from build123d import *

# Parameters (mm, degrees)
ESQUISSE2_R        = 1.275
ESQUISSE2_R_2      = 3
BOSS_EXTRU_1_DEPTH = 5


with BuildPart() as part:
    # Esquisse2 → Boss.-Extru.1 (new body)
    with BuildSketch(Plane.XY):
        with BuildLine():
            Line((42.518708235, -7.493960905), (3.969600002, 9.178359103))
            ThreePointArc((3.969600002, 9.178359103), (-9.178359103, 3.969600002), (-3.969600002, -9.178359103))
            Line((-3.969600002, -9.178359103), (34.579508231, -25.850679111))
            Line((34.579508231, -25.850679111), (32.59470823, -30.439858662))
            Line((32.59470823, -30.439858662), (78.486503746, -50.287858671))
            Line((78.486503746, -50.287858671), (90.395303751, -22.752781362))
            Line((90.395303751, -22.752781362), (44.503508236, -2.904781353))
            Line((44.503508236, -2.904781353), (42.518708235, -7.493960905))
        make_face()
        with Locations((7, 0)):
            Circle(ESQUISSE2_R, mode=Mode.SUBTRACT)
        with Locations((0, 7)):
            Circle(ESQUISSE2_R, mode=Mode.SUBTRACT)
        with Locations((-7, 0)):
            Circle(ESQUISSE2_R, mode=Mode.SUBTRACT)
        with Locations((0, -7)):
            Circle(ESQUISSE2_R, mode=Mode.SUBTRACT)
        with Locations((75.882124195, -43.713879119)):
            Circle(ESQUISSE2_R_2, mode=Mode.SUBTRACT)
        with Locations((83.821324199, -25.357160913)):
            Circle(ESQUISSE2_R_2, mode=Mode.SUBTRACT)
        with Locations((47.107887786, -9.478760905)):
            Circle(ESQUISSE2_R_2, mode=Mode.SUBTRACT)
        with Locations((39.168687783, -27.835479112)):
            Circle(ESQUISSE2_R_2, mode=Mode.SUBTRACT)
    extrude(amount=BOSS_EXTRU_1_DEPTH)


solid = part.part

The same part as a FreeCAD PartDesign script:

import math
import FreeCAD as App
import Part
import Sketcher

doc = App.newDocument("Part")
body = doc.addObject("PartDesign::Body", "Body")

# Sketch on XY plane
sketch1 = body.newObject("Sketcher::SketchObject", "Sketch")
sketch1.AttachmentSupport = (doc.getObject("XY_Plane"), [""])
sketch1.MapMode = "FlatFace"
sketch1.addGeometry([
    Part.LineSegment(App.Vector(42.5, -7.5, 0), App.Vector(4, 9.2, 0)),  # 0
    Part.ArcOfCircle(Part.Circle(App.Vector(0, 0, 0), App.Vector(0, 0, 1), 10), math.radians(67), math.radians(247)),  # 1
    Part.LineSegment(App.Vector(-4, -9.2, 0), App.Vector(34.6, -25.9, 0)),  # 2
    Part.LineSegment(App.Vector(34.6, -25.9, 0), App.Vector(32.6, -30.4, 0)),  # 3
    Part.LineSegment(App.Vector(32.6, -30.4, 0), App.Vector(78.5, -50.3, 0)),  # 4
    Part.LineSegment(App.Vector(78.5, -50.3, 0), App.Vector(90.4, -22.8, 0)),  # 5
    Part.LineSegment(App.Vector(90.4, -22.8, 0), App.Vector(44.5, -2.9, 0)),  # 6
    Part.LineSegment(App.Vector(44.5, -2.9, 0), App.Vector(42.5, -7.5, 0)),  # 7
    Part.Circle(App.Vector(39.2, -27.8, 0), App.Vector(0, 0, 1), 3),  # 8
    Part.Circle(App.Vector(75.9, -43.7, 0), App.Vector(0, 0, 1), 3),  # 9
    Part.Circle(App.Vector(83.8, -25.4, 0), App.Vector(0, 0, 1), 3),  # 10
    Part.Circle(App.Vector(0, -7, 0), App.Vector(0, 0, 1), 1.3),  # 11
    Part.Circle(App.Vector(-7, 0, 0), App.Vector(0, 0, 1), 1.3),  # 12
    Part.Circle(App.Vector(7, 0, 0), App.Vector(0, 0, 1), 1.3),  # 13
    Part.Circle(App.Vector(0, 7, 0), App.Vector(0, 0, 1), 1.3),  # 14
    Part.Circle(App.Vector(47.1, -9.5, 0), App.Vector(0, 0, 1), 3),  # 15
], False)
sketch1.addConstraint([
    Sketcher.Constraint("Tangent", 0, 2, 1, 1),
    Sketcher.Constraint("Tangent", 1, 2, 2, 1),
    Sketcher.Constraint("Coincident", 2, 2, 3, 1),
    Sketcher.Constraint("Coincident", 3, 2, 4, 1),
    Sketcher.Constraint("Coincident", 4, 2, 5, 1),
    Sketcher.Constraint("Coincident", 5, 2, 6, 1),
    Sketcher.Constraint("Coincident", 6, 2, 7, 1),
    Sketcher.Constraint("Coincident", 7, 2, 0, 1),
    Sketcher.Constraint("Coincident", 1, 3, -1, 1),
    Sketcher.Constraint("Equal", 8, 9),
    Sketcher.Constraint("Equal", 9, 10),
    Sketcher.Constraint("Equal", 11, 12),
    Sketcher.Constraint("Equal", 12, 13),
    Sketcher.Constraint("Equal", 13, 14),
    Sketcher.Constraint("Equal", 10, 15),
    Sketcher.Constraint("Symmetric", 12, 3, 13, 3, -1, 1),
    Sketcher.Constraint("Symmetric", 11, 3, 14, 3, -1, 1),
    Sketcher.Constraint("PointOnObject", 11, 3, -2),
    Sketcher.Constraint("PointOnObject", 12, 3, -1),
    Sketcher.Constraint("Parallel", 0, 2),
    Sketcher.Constraint("Perpendicular", 2, 3),
    Sketcher.Constraint("Perpendicular", 3, 4),
    Sketcher.Constraint("Perpendicular", 4, 5),
    Sketcher.Constraint("Perpendicular", 5, 6),
    Sketcher.Constraint("Perpendicular", 6, 7),
    Sketcher.Constraint("Equal", 0, 2),
    Sketcher.Constraint("Equal", 3, 7),
    Sketcher.Constraint("Diameter", 8, 6.0),
    Sketcher.Constraint("Radius", 1, 10.0),
    Sketcher.Constraint("Diameter", 11, 2.55),
    Sketcher.Constraint("Distance", 0, 42.0),
    Sketcher.Constraint("Distance", 3, 5.0),
    Sketcher.Constraint("Distance", 4, 50.0),
    Sketcher.Constraint("DistanceY", 11, 3, -1, 1, 7.0),
    Sketcher.Constraint("DistanceX", 12, 3, -1, 1, 7.0),
    Sketcher.Constraint("DistanceY", 4, 2, 3, 2, 19.848),
    Sketcher.Constraint("DistanceY", 9, 3, 8, 3, 15.8784),
    Sketcher.Constraint("DistanceX", 9, 3, 10, 3, 7.9392),
    Sketcher.Constraint("DistanceX", 8, 3, 15, 3, 7.9392),
    Sketcher.Constraint("DistanceY", 10, 3, 15, 3, 15.8784),
    Sketcher.Constraint("DistanceY", 8, 3, 2, 2, 1.9848),
    Sketcher.Constraint("DistanceY", 15, 3, 7, 2, 1.9848),
    Sketcher.Constraint("DistanceX", 2, 2, 8, 3, 4.58918),
    Sketcher.Constraint("DistanceX", 9, 3, 4, 2, 2.60438),
])
pad1 = body.newObject("PartDesign::Pad", "Pad")
pad1.Profile = sketch1
pad1.Length = 5

doc.recompute()
